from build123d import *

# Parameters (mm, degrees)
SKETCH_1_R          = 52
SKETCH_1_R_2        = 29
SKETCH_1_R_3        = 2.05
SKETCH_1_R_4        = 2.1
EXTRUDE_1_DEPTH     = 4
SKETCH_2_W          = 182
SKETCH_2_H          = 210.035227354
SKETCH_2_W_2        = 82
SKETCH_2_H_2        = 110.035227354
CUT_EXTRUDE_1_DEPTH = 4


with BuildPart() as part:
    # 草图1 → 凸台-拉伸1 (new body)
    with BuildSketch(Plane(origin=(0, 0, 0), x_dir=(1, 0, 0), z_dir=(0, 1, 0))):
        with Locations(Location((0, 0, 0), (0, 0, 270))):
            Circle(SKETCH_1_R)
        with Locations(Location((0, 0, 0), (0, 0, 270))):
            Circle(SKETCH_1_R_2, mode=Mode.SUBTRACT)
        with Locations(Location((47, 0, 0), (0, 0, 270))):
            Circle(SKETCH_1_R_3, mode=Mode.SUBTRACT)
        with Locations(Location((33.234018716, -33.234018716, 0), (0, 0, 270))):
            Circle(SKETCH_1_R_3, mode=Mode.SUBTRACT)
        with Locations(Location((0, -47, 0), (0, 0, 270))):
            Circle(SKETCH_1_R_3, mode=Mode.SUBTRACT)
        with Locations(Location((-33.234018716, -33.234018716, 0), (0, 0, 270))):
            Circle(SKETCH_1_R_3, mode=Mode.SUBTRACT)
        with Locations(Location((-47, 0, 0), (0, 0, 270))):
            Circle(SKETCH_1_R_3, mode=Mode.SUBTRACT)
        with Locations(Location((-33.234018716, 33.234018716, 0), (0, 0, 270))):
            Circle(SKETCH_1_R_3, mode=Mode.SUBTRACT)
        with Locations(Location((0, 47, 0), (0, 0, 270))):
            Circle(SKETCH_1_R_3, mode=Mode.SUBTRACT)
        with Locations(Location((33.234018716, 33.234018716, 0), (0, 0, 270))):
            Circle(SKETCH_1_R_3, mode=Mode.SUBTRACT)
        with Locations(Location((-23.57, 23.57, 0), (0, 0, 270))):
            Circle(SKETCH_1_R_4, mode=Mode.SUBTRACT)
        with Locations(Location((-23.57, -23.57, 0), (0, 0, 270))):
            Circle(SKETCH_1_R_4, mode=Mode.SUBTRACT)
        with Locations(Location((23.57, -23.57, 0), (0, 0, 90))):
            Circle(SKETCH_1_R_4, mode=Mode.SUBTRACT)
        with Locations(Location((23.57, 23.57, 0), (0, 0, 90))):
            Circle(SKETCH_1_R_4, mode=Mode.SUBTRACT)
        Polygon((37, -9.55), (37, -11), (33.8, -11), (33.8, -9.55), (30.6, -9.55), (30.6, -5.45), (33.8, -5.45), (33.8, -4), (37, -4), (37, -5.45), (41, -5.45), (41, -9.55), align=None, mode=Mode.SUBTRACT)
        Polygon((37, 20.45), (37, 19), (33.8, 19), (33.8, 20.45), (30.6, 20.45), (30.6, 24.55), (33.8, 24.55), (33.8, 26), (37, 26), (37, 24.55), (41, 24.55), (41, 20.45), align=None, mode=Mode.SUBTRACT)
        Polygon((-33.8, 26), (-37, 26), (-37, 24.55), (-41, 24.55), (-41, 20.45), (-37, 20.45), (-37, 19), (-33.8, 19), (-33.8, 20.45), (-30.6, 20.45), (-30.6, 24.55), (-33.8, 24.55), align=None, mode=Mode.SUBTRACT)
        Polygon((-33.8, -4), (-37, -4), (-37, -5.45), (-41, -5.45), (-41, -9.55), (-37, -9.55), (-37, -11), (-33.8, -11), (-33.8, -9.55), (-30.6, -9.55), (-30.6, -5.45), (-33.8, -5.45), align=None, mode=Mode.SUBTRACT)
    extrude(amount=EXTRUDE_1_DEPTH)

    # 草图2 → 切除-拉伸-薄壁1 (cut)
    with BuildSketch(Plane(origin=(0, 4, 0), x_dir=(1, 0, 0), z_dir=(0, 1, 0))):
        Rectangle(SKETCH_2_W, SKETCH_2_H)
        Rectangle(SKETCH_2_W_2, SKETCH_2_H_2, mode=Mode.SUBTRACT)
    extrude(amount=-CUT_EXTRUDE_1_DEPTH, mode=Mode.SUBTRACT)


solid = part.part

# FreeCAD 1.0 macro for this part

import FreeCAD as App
import Part
import Sketcher

V = App.Vector
Q = App.Units.Quantity


def add_polygon(sketch, points):
    """Adds a closed chain of lines whose ends are joined by coincident constraints."""
    first, n = sketch.GeometryCount, len(points)
    for a, b in zip(points, points[1:] + points[:1]):
        sketch.addGeometry(Part.LineSegment(App.Vector(*a, 0), App.Vector(*b, 0)), False)
    for i in range(n):
        sketch.addConstraint(Sketcher.Constraint("Coincident", first + i, 2, first + (i + 1) % n, 1))

doc = App.newDocument("Part")
body = doc.addObject("PartDesign::Body", "Body")

# Sketch on XZ plane
sketch1 = doc.addObject("Sketcher::SketchObject", "Sketch")
body.addObject(sketch1)
sketch1.AttachmentSupport = (doc.XZ_Plane, [""])
sketch1.MapMode = "FlatFace"
sketch1.addGeometry(Part.Circle(V(0, 0, 0), V(0, 0, 1), 52), False)  # 0
sketch1.addGeometry(Part.Circle(V(-33.234019, -33.234019, 0), V(0, 0, 1), 2.05), False)  # 1
add_polygon(sketch1, [(-37, -26), (-33.8, -26), (-33.8, -24.55), (-30.6, -24.55), (-30.6, -20.45), (-33.8, -20.45), (-33.8, -19), (-37, -19), (-37, -20.45), (-41, -20.45), (-41, -24.55), (-37, -24.55)])  # lines 2-13
sketch1.addGeometry(Part.Circle(V(0, -47, 0), V(0, 0, 1), 2.05), False)  # 14
sketch1.addGeometry(Part.Circle(V(-23.57, -23.57, 0), V(0, 0, 1), 2.1), False)  # 15
sketch1.addGeometry(Part.Circle(V(-47, 0, 0), V(0, 0, 1), 2.05), False)  # 16
add_polygon(sketch1, [(-37, 4), (-33.8, 4), (-33.8, 5.45), (-30.6, 5.45), (-30.6, 9.55), (-33.8, 9.55), (-33.8, 11), (-37, 11), (-37, 9.55), (-41, 9.55), (-41, 5.45), (-37, 5.45)])  # lines 17-28
sketch1.addGeometry(Part.Circle(V(-33.234019, 33.234019, 0), V(0, 0, 1), 2.05), False)  # 29
sketch1.addGeometry(Part.Circle(V(-23.57, 23.57, 0), V(0, 0, 1), 2.1), False)  # 30
sketch1.addGeometry(Part.Circle(V(23.57, -23.57, 0), V(0, 0, 1), 2.1), False)  # 31
sketch1.addGeometry(Part.Circle(V(33.234019, -33.234019, 0), V(0, 0, 1), 2.05), False)  # 32
add_polygon(sketch1, [(41, -20.45), (37, -20.45), (37, -19), (33.8, -19), (33.8, -20.45), (30.6, -20.45), (30.6, -24.55), (33.8, -24.55), (33.8, -26), (37, -26), (37, -24.55), (41, -24.55)])  # lines 33-44
sketch1.addGeometry(Part.Circle(V(47, 0, 0), V(0, 0, 1), 2.05), False)  # 45
sketch1.addGeometry(Part.Circle(V(0, 0, 0), V(0, 0, 1), 29), False)  # 46
sketch1.addGeometry(Part.Circle(V(23.57, 23.57, 0), V(0, 0, 1), 2.1), False)  # 47
sketch1.addGeometry(Part.Circle(V(0, 47, 0), V(0, 0, 1), 2.05), False)  # 48
add_polygon(sketch1, [(41, 9.55), (37, 9.55), (37, 11), (33.8, 11), (33.8, 9.55), (30.6, 9.55), (30.6, 5.45), (33.8, 5.45), (33.8, 4), (37, 4), (37, 5.45), (41, 5.45)])  # lines 49-60
sketch1.addGeometry(Part.Circle(V(33.234019, 33.234019, 0), V(0, 0, 1), 2.05), False)  # 61
sketch1.addConstraint(Sketcher.Constraint("Horizontal", 2))
sketch1.addConstraint(Sketcher.Constraint("Vertical", 3))
sketch1.addConstraint(Sketcher.Constraint("Horizontal", 4))
sketch1.addConstraint(Sketcher.Constraint("Vertical", 5))
sketch1.addConstraint(Sketcher.Constraint("Horizontal", 6))
sketch1.addConstraint(Sketcher.Constraint("Vertical", 7))
sketch1.addConstraint(Sketcher.Constraint("Horizontal", 8))
sketch1.addConstraint(Sketcher.Constraint("Vertical", 9))
sketch1.addConstraint(Sketcher.Constraint("Horizontal", 10))
sketch1.addConstraint(Sketcher.Constraint("Vertical", 11))
sketch1.addConstraint(Sketcher.Constraint("Horizontal", 12))
sketch1.addConstraint(Sketcher.Constraint("Vertical", 13))
sketch1.addConstraint(Sketcher.Constraint("Horizontal", 17))
sketch1.addConstraint(Sketcher.Constraint("Vertical", 18))
sketch1.addConstraint(Sketcher.Constraint("Horizontal", 19))
sketch1.addConstraint(Sketcher.Constraint("Vertical", 20))
sketch1.addConstraint(Sketcher.Constraint("Horizontal", 21))
sketch1.addConstraint(Sketcher.Constraint("Vertical", 22))
sketch1.addConstraint(Sketcher.Constraint("Horizontal", 23))
sketch1.addConstraint(Sketcher.Constraint("Vertical", 24))
sketch1.addConstraint(Sketcher.Constraint("Horizontal", 25))
sketch1.addConstraint(Sketcher.Constraint("Vertical", 26))
sketch1.addConstraint(Sketcher.Constraint("Horizontal", 27))
sketch1.addConstraint(Sketcher.Constraint("Vertical", 28))
sketch1.addConstraint(Sketcher.Constraint("Horizontal", 33))
sketch1.addConstraint(Sketcher.Constraint("Vertical", 34))
sketch1.addConstraint(Sketcher.Constraint("Horizontal", 35))
sketch1.addConstraint(Sketcher.Constraint("Vertical", 36))
sketch1.addConstraint(Sketcher.Constraint("Horizontal", 37))
sketch1.addConstraint(Sketcher.Constraint("Vertical", 38))
sketch1.addConstraint(Sketcher.Constraint("Horizontal", 39))
sketch1.addConstraint(Sketcher.Constraint("Vertical", 40))
sketch1.addConstraint(Sketcher.Constraint("Horizontal", 41))
sketch1.addConstraint(Sketcher.Constraint("Vertical", 42))
sketch1.addConstraint(Sketcher.Constraint("Horizontal", 43))
sketch1.addConstraint(Sketcher.Constraint("Vertical", 44))
sketch1.addConstraint(Sketcher.Constraint("Horizontal", 49))
sketch1.addConstraint(Sketcher.Constraint("Vertical", 50))
sketch1.addConstraint(Sketcher.Constraint("Horizontal", 51))
sketch1.addConstraint(Sketcher.Constraint("Vertical", 52))
sketch1.addConstraint(Sketcher.Constraint("Horizontal", 53))
sketch1.addConstraint(Sketcher.Constraint("Vertical", 54))
sketch1.addConstraint(Sketcher.Constraint("Horizontal", 55))
sketch1.addConstraint(Sketcher.Constraint("Vertical", 56))
sketch1.addConstraint(Sketcher.Constraint("Horizontal", 57))
sketch1.addConstraint(Sketcher.Constraint("Vertical", 58))
sketch1.addConstraint(Sketcher.Constraint("Horizontal", 59))
sketch1.addConstraint(Sketcher.Constraint("Vertical", 60))
sketch1.addConstraint(Sketcher.Constraint("Coincident", 0, 3, -1, 1))
sketch1.addConstraint(Sketcher.Constraint("Coincident", 46, 3, -1, 1))
sketch1.addConstraint(Sketcher.Constraint("Equal", 1, 14))
sketch1.addConstraint(Sketcher.Constraint("Equal", 14, 16))
sketch1.addConstraint(Sketcher.Constraint("Equal", 16, 29))
sketch1.addConstraint(Sketcher.Constraint("Equal", 15, 30))
sketch1.addConstraint(Sketcher.Constraint("Equal", 30, 31))
sketch1.addConstraint(Sketcher.Constraint("Equal", 29, 32))
sketch1.addConstraint(Sketcher.Constraint("Equal", 32, 45))
sketch1.addConstraint(Sketcher.Constraint("Equal", 31, 47))
sketch1.addConstraint(Sketcher.Constraint("Equal", 45, 48))
sketch1.addConstraint(Sketcher.Constraint("Equal", 48, 61))
sketch1.addConstraint(Sketcher.Constraint("Symmetric", 30, 3, 31, 3, -1, 1))
sketch1.addConstraint(Sketcher.Constraint("Symmetric", 29, 3, 32, 3, -1, 1))
sketch1.addConstraint(Sketcher.Constraint("Symmetric", 16, 3, 45, 3, -1, 1))
sketch1.addConstraint(Sketcher.Constraint("Symmetric", 15, 3, 47, 3, -1, 1))
sketch1.addConstraint(Sketcher.Constraint("Symmetric", 14, 3, 48, 3, -1, 1))
sketch1.addConstraint(Sketcher.Constraint("Symmetric", 1, 3, 61, 3, -1, 1))
sketch1.addConstraint(Sketcher.Constraint("Symmetric", 15, 3, 31, 3, -2))
sketch1.addConstraint(Sketcher.Constraint("Symmetric", 1, 3, 32, 3, -2))
sketch1.addConstraint(Sketcher.Constraint("Symmetric", 9, 2, 33, 2, -2))
sketch1.addConstraint(Sketcher.Constraint("Symmetric", 7, 2, 35, 2, -2))
sketch1.addConstraint(Sketcher.Constraint("Symmetric", 5, 2, 37, 2, -2))
sketch1.addConstraint(Sketcher.Constraint("Symmetric", 3, 2, 39, 2, -2))
sketch1.addConstraint(Sketcher.Constraint("Symmetric", 13, 2, 41, 2, -2))
sketch1.addConstraint(Sketcher.Constraint("Symmetric", 11, 2, 43, 2, -2))
sketch1.addConstraint(Sketcher.Constraint("Symmetric", 24, 2, 49, 2, -2))
sketch1.addConstraint(Sketcher.Constraint("Symmetric", 22, 2, 51, 2, -2))
sketch1.addConstraint(Sketcher.Constraint("Symmetric", 20, 2, 53, 2, -2))
sketch1.addConstraint(Sketcher.Constraint("Symmetric", 18, 2, 55, 2, -2))
sketch1.addConstraint(Sketcher.Constraint("Symmetric", 28, 2, 57, 2, -2))
sketch1.addConstraint(Sketcher.Constraint("Symmetric", 26, 2, 59, 2, -2))
sketch1.addConstraint(Sketcher.Constraint("PointOnObject", 14, 3, -2))
sketch1.addConstraint(Sketcher.Constraint("PointOnObject", 16, 3, -1))
sketch1.addConstraint(Sketcher.Constraint("Horizontal", 6, 2, 9, 2))
sketch1.addConstraint(Sketcher.Constraint("Horizontal", 4, 2, 11, 2))
sketch1.addConstraint(Sketcher.Constraint("Horizontal", 21, 2, 24, 2))
sketch1.addConstraint(Sketcher.Constraint("Horizontal", 19, 2, 26, 2))
sketch1.addConstraint(Sketcher.Constraint("Vertical", 3, 2, 6, 2))
sketch1.addConstraint(Sketcher.Constraint("Vertical", 9, 2, 12, 2))
sketch1.addConstraint(Sketcher.Constraint("Vertical", 7, 2, 17, 2))
sketch1.addConstraint(Sketcher.Constraint("Vertical", 5, 2, 19, 2))
sketch1.addConstraint(Sketcher.Constraint("Vertical", 18, 2, 21, 2))
sketch1.addConstraint(Sketcher.Constraint("Vertical", 13, 2, 23, 2))
sketch1.addConstraint(Sketcher.Constraint("Vertical", 11, 2, 25, 2))
sketch1.addConstraint(Sketcher.Constraint("Vertical", 24, 2, 27, 2))
sketch1.addConstraint(Sketcher.Constraint("Equal", 2, 4))
sketch1.addConstraint(Sketcher.Constraint("Equal", 3, 7))
sketch1.addConstraint(Sketcher.Constraint("Equal", 13, 18))
sketch1.addConstraint(Sketcher.Constraint("Equal", 11, 20))
sketch1.addConstraint(Sketcher.Constraint("Equal", 18, 22))
sketch1.addConstraint(Sketcher.Constraint("Diameter", 0, Q("104 mm")))
sketch1.addConstraint(Sketcher.Constraint("Diameter", 46, Q("58 mm")))
sketch1.addConstraint(Sketcher.Constraint("Diameter", 1, Q("4.1 mm")))
sketch1.addConstraint(Sketcher.Constraint("Diameter", 15, Q("4.2 mm")))
sketch1.addConstraint(Sketcher.Constraint("DistanceX", 10, 2, 10, 1, Q("4 mm")))
sketch1.addConstraint(Sketcher.Constraint("DistanceX", 2, 1, 2, 2, Q("3.2 mm")))
sketch1.addConstraint(Sketcher.Constraint("DistanceY", 5, 1, 5, 2, Q("4.1 mm")))
sketch1.addConstraint(Sketcher.Constraint("DistanceY", 14, 3, -1, 1, Q("47 mm")))
sketch1.addConstraint(Sketcher.Constraint("DistanceX", 16, 3, -1, 1, Q("47 mm")))
sketch1.addConstraint(Sketcher.Constraint("DistanceY", 2, 2, -1, 1, Q("26 mm")))
sketch1.addConstraint(Sketcher.Constraint("DistanceY", 7, 2, -1, 1, Q("19 mm")))
sketch1.addConstraint(Sketcher.Constraint("DistanceX", 8, 2, -1, 1, Q("37 mm")))
sketch1.addConstraint(Sketcher.Constraint("DistanceY", -1, 1, 17, 2, Q("4 mm")))
sketch1.addConstraint(Sketcher.Constraint("DistanceX", 15, 3, -1, 1, Q("23.57 mm")))
sketch1.addConstraint(Sketcher.Constraint("DistanceY", 15, 3, -1, 1, Q("23.57 mm")))
sketch1.addConstraint(Sketcher.Constraint("DistanceX", 1, 3, -1, 1, Q("33.234019 mm")))
sketch1.addConstraint(Sketcher.Constraint("DistanceY", 1, 3, -1, 1, Q("33.234019 mm")))
pad1 = doc.addObject("PartDesign::Pad", "Pad")
body.addObject(pad1)
pad1.Profile = sketch1
pad1.Length = 4
pad1.Reversed = True

# Sketch on XZ plane
sketch2 = doc.addObject("Sketcher::SketchObject", "Sketch001")
body.addObject(sketch2)
sketch2.AttachmentSupport = (doc.XZ_Plane, [""])
sketch2.MapMode = "FlatFace"
sketch2.AttachmentOffset = App.Placement(V(0, 0, -4), App.Rotation())
add_polygon(sketch2, [(-91, -105.017614), (-91, 105.017614), (91, 105.017614), (91, -105.017614)])  # lines 0-3
add_polygon(sketch2, [(41, 55.017614), (-41, 55.017614), (-41, -55.017614), (41, -55.017614)])  # lines 4-7
sketch2.addConstraint(Sketcher.Constraint("Vertical", 0))
sketch2.addConstraint(Sketcher.Constraint("Horizontal", 1))
sketch2.addConstraint(Sketcher.Constraint("Vertical", 2))
sketch2.addConstraint(Sketcher.Constraint("Horizontal", 3))
sketch2.addConstraint(Sketcher.Constraint("Horizontal", 4))
sketch2.addConstraint(Sketcher.Constraint("Vertical", 5))
sketch2.addConstraint(Sketcher.Constraint("Horizontal", 6))
sketch2.addConstraint(Sketcher.Constraint("Vertical", 7))
sketch2.addConstraint(Sketcher.Constraint("Symmetric", 0, 2, 2, 2, -1, 1))
sketch2.addConstraint(Sketcher.Constraint("Symmetric", 4, 2, 6, 2, -1, 1))
sketch2.addConstraint(Sketcher.Constraint("DistanceX", 1, 1, 1, 2, Q("182 mm")))
sketch2.addConstraint(Sketcher.Constraint("DistanceX", 4, 2, 4, 1, Q("82 mm")))
sketch2.addConstraint(Sketcher.Constraint("DistanceY", 4, 2, 0, 2, Q("50 mm")))
sketch2.addConstraint(Sketcher.Constraint("DistanceY", 0, 1, 0, 2, Q("210.035227 mm")))
pocket1 = doc.addObject("PartDesign::Pocket", "Pocket")
body.addObject(pocket1)
pocket1.Profile = sketch2
pocket1.Length = 4
pocket1.Reversed = True

doc.recompute()
